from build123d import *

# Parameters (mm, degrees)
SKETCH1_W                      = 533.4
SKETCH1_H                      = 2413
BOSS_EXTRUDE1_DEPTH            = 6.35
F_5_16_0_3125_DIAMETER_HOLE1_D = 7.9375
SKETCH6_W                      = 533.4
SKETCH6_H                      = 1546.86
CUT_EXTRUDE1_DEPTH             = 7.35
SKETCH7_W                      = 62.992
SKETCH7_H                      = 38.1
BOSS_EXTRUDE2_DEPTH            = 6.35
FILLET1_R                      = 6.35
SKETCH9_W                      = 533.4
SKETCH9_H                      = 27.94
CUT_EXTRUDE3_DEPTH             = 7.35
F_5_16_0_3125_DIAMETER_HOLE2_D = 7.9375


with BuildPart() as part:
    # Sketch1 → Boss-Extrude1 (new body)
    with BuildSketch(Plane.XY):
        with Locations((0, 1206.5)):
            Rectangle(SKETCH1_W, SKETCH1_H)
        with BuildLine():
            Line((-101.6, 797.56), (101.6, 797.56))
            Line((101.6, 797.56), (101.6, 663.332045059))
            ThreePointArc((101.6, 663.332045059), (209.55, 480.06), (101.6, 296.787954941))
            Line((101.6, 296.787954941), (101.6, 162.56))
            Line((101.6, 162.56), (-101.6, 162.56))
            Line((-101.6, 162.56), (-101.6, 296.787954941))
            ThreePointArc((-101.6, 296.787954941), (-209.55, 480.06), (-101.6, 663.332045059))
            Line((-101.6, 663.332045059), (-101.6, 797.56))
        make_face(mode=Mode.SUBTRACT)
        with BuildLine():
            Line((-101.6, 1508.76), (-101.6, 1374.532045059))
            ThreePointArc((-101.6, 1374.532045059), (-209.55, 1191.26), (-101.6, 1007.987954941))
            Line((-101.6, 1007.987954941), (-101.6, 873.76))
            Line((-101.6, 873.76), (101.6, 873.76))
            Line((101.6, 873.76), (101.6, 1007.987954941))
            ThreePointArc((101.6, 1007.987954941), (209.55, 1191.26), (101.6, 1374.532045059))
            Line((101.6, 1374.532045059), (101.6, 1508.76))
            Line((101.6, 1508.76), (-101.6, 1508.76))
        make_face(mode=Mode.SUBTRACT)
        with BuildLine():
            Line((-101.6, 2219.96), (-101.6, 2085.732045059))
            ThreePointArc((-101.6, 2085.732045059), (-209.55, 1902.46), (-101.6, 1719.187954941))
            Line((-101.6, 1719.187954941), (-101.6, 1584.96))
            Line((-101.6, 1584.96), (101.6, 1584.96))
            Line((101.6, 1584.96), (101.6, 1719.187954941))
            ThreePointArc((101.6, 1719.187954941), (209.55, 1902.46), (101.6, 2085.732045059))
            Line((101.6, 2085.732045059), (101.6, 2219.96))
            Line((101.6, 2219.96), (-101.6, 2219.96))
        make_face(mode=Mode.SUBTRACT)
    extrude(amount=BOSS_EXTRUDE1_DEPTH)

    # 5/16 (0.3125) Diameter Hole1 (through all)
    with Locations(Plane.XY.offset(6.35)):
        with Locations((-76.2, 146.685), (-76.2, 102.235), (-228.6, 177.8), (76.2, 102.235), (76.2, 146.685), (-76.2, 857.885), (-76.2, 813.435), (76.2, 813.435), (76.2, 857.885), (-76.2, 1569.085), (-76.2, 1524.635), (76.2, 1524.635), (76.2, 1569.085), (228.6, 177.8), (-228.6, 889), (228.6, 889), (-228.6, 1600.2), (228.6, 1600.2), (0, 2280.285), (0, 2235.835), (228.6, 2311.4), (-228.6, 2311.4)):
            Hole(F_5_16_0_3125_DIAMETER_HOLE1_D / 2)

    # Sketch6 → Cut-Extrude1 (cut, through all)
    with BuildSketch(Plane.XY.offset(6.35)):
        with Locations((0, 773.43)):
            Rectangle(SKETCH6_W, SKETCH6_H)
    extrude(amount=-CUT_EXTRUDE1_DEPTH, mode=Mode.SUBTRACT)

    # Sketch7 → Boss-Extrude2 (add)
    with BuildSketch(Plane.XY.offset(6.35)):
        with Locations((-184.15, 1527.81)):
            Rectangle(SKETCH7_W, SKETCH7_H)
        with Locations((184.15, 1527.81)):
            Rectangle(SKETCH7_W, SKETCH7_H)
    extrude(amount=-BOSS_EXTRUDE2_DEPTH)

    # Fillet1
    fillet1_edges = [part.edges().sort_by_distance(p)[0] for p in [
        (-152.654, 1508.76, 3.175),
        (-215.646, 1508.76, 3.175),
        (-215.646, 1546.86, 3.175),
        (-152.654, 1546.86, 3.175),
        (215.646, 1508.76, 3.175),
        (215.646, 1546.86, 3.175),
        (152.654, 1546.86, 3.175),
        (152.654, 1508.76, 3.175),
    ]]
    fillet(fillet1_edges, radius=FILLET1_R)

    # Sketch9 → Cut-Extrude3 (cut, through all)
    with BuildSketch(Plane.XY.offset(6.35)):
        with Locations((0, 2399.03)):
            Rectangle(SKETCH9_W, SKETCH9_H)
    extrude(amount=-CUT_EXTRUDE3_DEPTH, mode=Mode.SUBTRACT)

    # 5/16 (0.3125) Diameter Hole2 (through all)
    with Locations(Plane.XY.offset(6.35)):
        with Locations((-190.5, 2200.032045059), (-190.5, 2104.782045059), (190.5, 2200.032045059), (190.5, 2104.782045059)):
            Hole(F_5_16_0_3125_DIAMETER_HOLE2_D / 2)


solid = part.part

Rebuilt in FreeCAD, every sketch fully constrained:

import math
import FreeCAD as App
import Part
import Sketcher
from FreeCAD import Vector
Q = App.Units.Quantity


def edges_at(feature, points):
    """Names of the edges that pass closest to the given points."""
    edges = feature.Shape.Edges
    near = lambda p: min(range(len(edges)), key=lambda i: edges[i].distToShape(Part.Vertex(*p))[0])
    return sorted({f"Edge{near(p) + 1}" for p in points})


def add_polygon(sketch, points):
    """Adds a closed chain of lines whose ends are joined by coincident constraints."""
    first, n = sketch.GeometryCount, len(points)
    for a, b in zip(points, points[1:] + points[:1]):
        sketch.addGeometry(Part.LineSegment(App.Vector(*a, 0), App.Vector(*b, 0)), False)
    for i in range(n):
        sketch.addConstraint(Sketcher.Constraint("Coincident", first + i, 2, first + (i + 1) % n, 1))

doc = App.newDocument("Part")
body = doc.addObject("PartDesign::Body", "Body")

# Sketch on XY plane
sketch1 = body.newObject("Sketcher::SketchObject", "Sketch")
sketch1.AttachmentSupport = (doc.getObject("XY_Plane"), [""])
sketch1.MapMode = "FlatFace"
add_polygon(sketch1, [(-267, 2413), (-267, 0), (267, 0), (267, 2413)])  # lines 0-3
sketch1.addGeometry(Part.LineSegment(Vector(-102, 663, 0), Vector(-102, 798, 0)), False)  # 4
sketch1.addGeometry(Part.LineSegment(Vector(-102, 798, 0), Vector(102, 798, 0)), False)  # 5
sketch1.addGeometry(Part.LineSegment(Vector(102, 798, 0), Vector(102, 663, 0)), False)  # 6
sketch1.addGeometry(Part.ArcOfCircle(Part.Circle(Vector(0, 480, 0), Vector(0, 0, 1), 210), math.radians(-61), math.radians(61)), False)  # 7
sketch1.addGeometry(Part.LineSegment(Vector(102, 297, 0), Vector(102, 163, 0)), False)  # 8
sketch1.addGeometry(Part.LineSegment(Vector(102, 163, 0), Vector(-102, 163, 0)), False)  # 9
sketch1.addGeometry(Part.LineSegment(Vector(-102, 163, 0), Vector(-102, 297, 0)), False)  # 10
sketch1.addGeometry(Part.ArcOfCircle(Part.Circle(Vector(0, 480, 0), Vector(0, 0, 1), 210), math.radians(119), math.radians(241)), False)  # 11
sketch1.addGeometry(Part.LineSegment(Vector(-102, 1375, 0), Vector(-102, 1509, 0)), False)  # 12
sketch1.addGeometry(Part.LineSegment(Vector(-102, 1509, 0), Vector(102, 1509, 0)), False)  # 13
sketch1.addGeometry(Part.LineSegment(Vector(102, 1509, 0), Vector(102, 1375, 0)), False)  # 14
sketch1.addGeometry(Part.ArcOfCircle(Part.Circle(Vector(0, 1191, 0), Vector(0, 0, 1), 210), math.radians(-61), math.radians(61)), False)  # 15
sketch1.addGeometry(Part.LineSegment(Vector(102, 1008, 0), Vector(102, 874, 0)), False)  # 16
sketch1.addGeometry(Part.LineSegment(Vector(102, 874, 0), Vector(-102, 874, 0)), False)  # 17
sketch1.addGeometry(Part.LineSegment(Vector(-102, 874, 0), Vector(-102, 1008, 0)), False)  # 18
sketch1.addGeometry(Part.ArcOfCircle(Part.Circle(Vector(0, 1191, 0), Vector(0, 0, 1), 210), math.radians(119), math.radians(241)), False)  # 19
sketch1.addGeometry(Part.LineSegment(Vector(-102, 2086, 0), Vector(-102, 2220, 0)), False)  # 20
sketch1.addGeometry(Part.LineSegment(Vector(-102, 2220, 0), Vector(102, 2220, 0)), False)  # 21
sketch1.addGeometry(Part.LineSegment(Vector(102, 2220, 0), Vector(102, 2086, 0)), False)  # 22
sketch1.addGeometry(Part.ArcOfCircle(Part.Circle(Vector(0, 1902, 0), Vector(0, 0, 1), 210), math.radians(-61), math.radians(61)), False)  # 23
sketch1.addGeometry(Part.LineSegment(Vector(102, 1719, 0), Vector(102, 1585, 0)), False)  # 24
sketch1.addGeometry(Part.LineSegment(Vector(102, 1585, 0), Vector(-102, 1585, 0)), False)  # 25
sketch1.addGeometry(Part.LineSegment(Vector(-102, 1585, 0), Vector(-102, 1719, 0)), False)  # 26
sketch1.addGeometry(Part.ArcOfCircle(Part.Circle(Vector(0, 1902, 0), Vector(0, 0, 1), 210), math.radians(119), math.radians(241)), False)  # 27
sketch1.addConstraint([
    Sketcher.Constraint("Coincident", 4, 2, 5, 1),
    Sketcher.Constraint("Coincident", 5, 2, 6, 1),
    Sketcher.Constraint("Coincident", 6, 2, 7, 2),
    Sketcher.Constraint("Coincident", 7, 1, 8, 1),
    Sketcher.Constraint("Coincident", 8, 2, 9, 1),
    Sketcher.Constraint("Coincident", 9, 2, 10, 1),
    Sketcher.Constraint("Coincident", 10, 2, 11, 2),
    Sketcher.Constraint("Coincident", 11, 1, 4, 1),
    Sketcher.Constraint("Coincident", 12, 2, 13, 1),
    Sketcher.Constraint("Coincident", 13, 2, 14, 1),
    Sketcher.Constraint("Coincident", 14, 2, 15, 2),
    Sketcher.Constraint("Coincident", 15, 1, 16, 1),
    Sketcher.Constraint("Coincident", 16, 2, 17, 1),
    Sketcher.Constraint("Coincident", 17, 2, 18, 1),
    Sketcher.Constraint("Coincident", 18, 2, 19, 2),
    Sketcher.Constraint("Coincident", 19, 1, 12, 1),
    Sketcher.Constraint("Coincident", 20, 2, 21, 1),
    Sketcher.Constraint("Coincident", 21, 2, 22, 1),
    Sketcher.Constraint("Coincident", 22, 2, 23, 2),
    Sketcher.Constraint("Coincident", 23, 1, 24, 1),
    Sketcher.Constraint("Coincident", 24, 2, 25, 1),
    Sketcher.Constraint("Coincident", 25, 2, 26, 1),
    Sketcher.Constraint("Coincident", 26, 2, 27, 2),
    Sketcher.Constraint("Coincident", 27, 1, 20, 1),
    Sketcher.Constraint("Vertical", 0),
    Sketcher.Constraint("Horizontal", 1),
    Sketcher.Constraint("Vertical", 2),
    Sketcher.Constraint("Horizontal", 3),
    Sketcher.Constraint("Vertical", 4),
    Sketcher.Constraint("Horizontal", 5),
    Sketcher.Constraint("Vertical", 6),
    Sketcher.Constraint("Vertical", 8),
    Sketcher.Constraint("Horizontal", 9),
    Sketcher.Constraint("Vertical", 10),
    Sketcher.Constraint("Vertical", 12),
    Sketcher.Constraint("Horizontal", 13),
    Sketcher.Constraint("Vertical", 14),
    Sketcher.Constraint("Vertical", 16),
    Sketcher.Constraint("Horizontal", 17),
    Sketcher.Constraint("Vertical", 18),
    Sketcher.Constraint("Vertical", 20),
    Sketcher.Constraint("Horizontal", 21),
    Sketcher.Constraint("Vertical", 22),
    Sketcher.Constraint("Vertical", 24),
    Sketcher.Constraint("Horizontal", 25),
    Sketcher.Constraint("Vertical", 26),
    Sketcher.Constraint("Coincident", 11, 3, 7, 3),
    Sketcher.Constraint("Coincident", 19, 3, 15, 3),
    Sketcher.Constraint("Coincident", 27, 3, 23, 3),
    Sketcher.Constraint("Equal", 7, 11),
    Sketcher.Constraint("Equal", 11, 15),
    Sketcher.Constraint("Equal", 15, 19),
    Sketcher.Constraint("Equal", 19, 23),
    Sketcher.Constraint("Equal", 23, 27),
    Sketcher.Constraint("Symmetric", 0, 2, 1, 2, -1, 1),
    Sketcher.Constraint("Symmetric", 7, 1, 10, 2, -2),
    Sketcher.Constraint("Symmetric", 15, 1, 18, 2, -2),
    Sketcher.Constraint("Symmetric", 23, 1, 26, 2, -2),
    Sketcher.Constraint("Horizontal", 6, 2, 11, 1),
    Sketcher.Constraint("Horizontal", 14, 2, 19, 1),
    Sketcher.Constraint("Horizontal", 22, 2, 27, 1),
    Sketcher.Constraint("Vertical", 6, 2, 7, 1),
    Sketcher.Constraint("Vertical", 11, 1, 12, 2),
    Sketcher.Constraint("Vertical", 14, 2, 15, 1),
    Sketcher.Constraint("Vertical", 19, 1, 20, 2),
    Sketcher.Constraint("Vertical", 22, 2, 23, 1),
    Sketcher.Constraint("Equal", 6, 8),
    Sketcher.Constraint("Equal", 10, 12),
    Sketcher.Constraint("Equal", 14, 16),
    Sketcher.Constraint("Equal", 18, 20),
    Sketcher.Constraint("Equal", 22, 24),
    Sketcher.Constraint("DistanceX", 1, 1, 1, 2, Q("21 in")),
    Sketcher.Constraint("DistanceX", 5, 1, 5, 2, Q("8 in")),
    Sketcher.Constraint("DistanceY", 0, 2, 0, 1, Q("95 in")),
    Sketcher.Constraint("Radius", 7, Q("8.25 in")),
    Sketcher.Constraint("DistanceY", 7, 3, 15, 3, Q("28 in")),
    Sketcher.Constraint("DistanceY", 15, 3, 23, 3, Q("28 in")),
    Sketcher.Constraint("DistanceY", 5, 2, 16, 2, Q("3 in")),
    Sketcher.Constraint("DistanceY", -1, 1, 7, 3, Q("18.9 in")),
])
pad1 = body.newObject("PartDesign::Pad", "Pad")
pad1.Profile = sketch1
pad1.Length = Q("0.25 in")

# Sketch on XY plane
sketch2 = body.newObject("Sketcher::SketchObject", "Sketch001")
sketch2.AttachmentSupport = (doc.getObject("XY_Plane"), [""])
sketch2.MapMode = "FlatFace"
sketch2.AttachmentOffset = App.Placement(Vector(0, 0, 0.25 * 25.4), App.Rotation())
sketch2.addGeometry([
    Part.Circle(Vector(-76.2, 146.7, 0), Vector(0, 0, 1), 4),  # 0
    Part.Circle(Vector(-76.2, 102.2, 0), Vector(0, 0, 1), 4),  # 1
    Part.Circle(Vector(-228.6, 177.8, 0), Vector(0, 0, 1), 4),  # 2
    Part.Circle(Vector(76.2, 102.2, 0), Vector(0, 0, 1), 4),  # 3
    Part.Circle(Vector(76.2, 146.7, 0), Vector(0, 0, 1), 4),  # 4
    Part.Circle(Vector(-76.2, 857.9, 0), Vector(0, 0, 1), 4),  # 5
    Part.Circle(Vector(-76.2, 813.4, 0), Vector(0, 0, 1), 4),  # 6
    Part.Circle(Vector(76.2, 813.4, 0), Vector(0, 0, 1), 4),  # 7
    Part.Circle(Vector(76.2, 857.9, 0), Vector(0, 0, 1), 4),  # 8
    Part.Circle(Vector(-76.2, 1569.1, 0), Vector(0, 0, 1), 4),  # 9
    Part.Circle(Vector(-76.2, 1524.6, 0), Vector(0, 0, 1), 4),  # 10
    Part.Circle(Vector(76.2, 1524.6, 0), Vector(0, 0, 1), 4),  # 11
    Part.Circle(Vector(76.2, 1569.1, 0), Vector(0, 0, 1), 4),  # 12
    Part.Circle(Vector(228.6, 177.8, 0), Vector(0, 0, 1), 4),  # 13
    Part.Circle(Vector(-228.6, 889, 0), Vector(0, 0, 1), 4),  # 14
    Part.Circle(Vector(228.6, 889, 0), Vector(0, 0, 1), 4),  # 15
    Part.Circle(Vector(-228.6, 1600.2, 0), Vector(0, 0, 1), 4),  # 16
    Part.Circle(Vector(228.6, 1600.2, 0), Vector(0, 0, 1), 4),  # 17
    Part.Circle(Vector(0, 2280.3, 0), Vector(0, 0, 1), 4),  # 18
    Part.Circle(Vector(0, 2235.8, 0), Vector(0, 0, 1), 4),  # 19
    Part.Circle(Vector(228.6, 2311.4, 0), Vector(0, 0, 1), 4),  # 20
    Part.Circle(Vector(-228.6, 2311.4, 0), Vector(0, 0, 1), 4),  # 21
], False)
sketch2.addConstraint([
    Sketcher.Constraint("Equal", 0, 1),
    Sketcher.Constraint("Equal", 1, 2),
    Sketcher.Constraint("Equal", 2, 3),
    Sketcher.Constraint("Equal", 3, 4),
    Sketcher.Constraint("Equal", 4, 5),
    Sketcher.Constraint("Equal", 5, 6),
    Sketcher.Constraint("Equal", 6, 7),
    Sketcher.Constraint("Equal", 7, 8),
    Sketcher.Constraint("Equal", 8, 9),
    Sketcher.Constraint("Equal", 9, 10),
    Sketcher.Constraint("Equal", 10, 11),
    Sketcher.Constraint("Equal", 11, 12),
    Sketcher.Constraint("Equal", 12, 13),
    Sketcher.Constraint("Equal", 13, 14),
    Sketcher.Constraint("Equal", 14, 15),
    Sketcher.Constraint("Equal", 15, 16),
    Sketcher.Constraint("Equal", 16, 17),
    Sketcher.Constraint("Equal", 17, 18),
    Sketcher.Constraint("Equal", 18, 19),
    Sketcher.Constraint("Equal", 19, 20),
    Sketcher.Constraint("Equal", 20, 21),
    Sketcher.Constraint("Symmetric", 1, 3, 3, 3, -2),
    Sketcher.Constraint("Symmetric", 0, 3, 4, 3, -2),
    Sketcher.Constraint("Symmetric", 6, 3, 7, 3, -2),
    Sketcher.Constraint("Symmetric", 5, 3, 8, 3, -2),
    Sketcher.Constraint("Symmetric", 10, 3, 11, 3, -2),
    Sketcher.Constraint("Symmetric", 9, 3, 12, 3, -2),
    Sketcher.Constraint("Symmetric", 2, 3, 13, 3, -2),
    Sketcher.Constraint("Symmetric", 14, 3, 15, 3, -2),
    Sketcher.Constraint("Symmetric", 16, 3, 17, 3, -2),
    Sketcher.Constraint("Symmetric", 20, 3, 21, 3, -2),
    Sketcher.Constraint("PointOnObject", 18, 3, -2),
    Sketcher.Constraint("PointOnObject", 19, 3, -2),
    Sketcher.Constraint("Vertical", 0, 3, 1, 3),
    Sketcher.Constraint("Vertical", 1, 3, 5, 3),
    Sketcher.Constraint("Vertical", 5, 3, 6, 3),
    Sketcher.Constraint("Vertical", 6, 3, 9, 3),
    Sketcher.Constraint("Vertical", 9, 3, 10, 3),
    Sketcher.Constraint("Vertical", 2, 3, 14, 3),
    Sketcher.Constraint("Vertical", 14, 3, 16, 3),
    Sketcher.Constraint("Vertical", 17, 3, 20, 3),
    Sketcher.Constraint("Diameter", 0, Q("0.3125 in")),
    Sketcher.Constraint("DistanceX", 0, 3, -1, 1, Q("3 in")),
    Sketcher.Constraint("DistanceX", 2, 3, -1, 1, Q("9 in")),
    Sketcher.Constraint("DistanceY", -1, 1, 2, 3, Q("7 in")),
    Sketcher.Constraint("DistanceY", -1, 1, 14, 3, Q("35 in")),
    Sketcher.Constraint("DistanceY", -1, 1, 16, 3, Q("63 in")),
    Sketcher.Constraint("DistanceY", -1, 1, 20, 3, Q("91 in")),
    Sketcher.Constraint("DistanceY", 0, 3, 5, 3, Q("28 in")),
    Sketcher.Constraint("DistanceY", 1, 3, 6, 3, Q("28 in")),
    Sketcher.Constraint("DistanceY", 5, 3, 9, 3, Q("28 in")),
    Sketcher.Constraint("DistanceY", 6, 3, 10, 3, Q("28 in")),
    Sketcher.Constraint("DistanceY", 9, 3, 18, 3, Q("28 in")),
    Sketcher.Constraint("DistanceY", 1, 3, 0, 3, Q("1.75 in")),
    Sketcher.Constraint("DistanceY", 19, 3, 18, 3, Q("1.75 in")),
    Sketcher.Constraint("DistanceY", -1, 1, 0, 3, Q("5.775 in")),
])
doc.recompute()
hole = body.newObject("PartDesign::Hole", "Hole")
hole.Profile = sketch2
hole.ThreadType = "None"
hole.Diameter = Q("0.3125 in")
hole.DepthType = "ThroughAll"

# Sketch on XY plane
sketch3 = body.newObject("Sketcher::SketchObject", "Sketch002")
sketch3.AttachmentSupport = (doc.getObject("XY_Plane"), [""])
sketch3.MapMode = "FlatFace"
sketch3.AttachmentOffset = App.Placement(Vector(0, 0, 0.25 * 25.4), App.Rotation())
add_polygon(sketch3, [(-267, 1547), (-267, 0), (267, 0), (267, 1547)])  # lines 0-3
sketch3.addConstraint([
    Sketcher.Constraint("Vertical", 0),
    Sketcher.Constraint("Horizontal", 1),
    Sketcher.Constraint("Vertical", 2),
    Sketcher.Constraint("Horizontal", 3),
    Sketcher.Constraint("Symmetric", 0, 2, 1, 2, -1, 1),
    Sketcher.Constraint("DistanceX", 1, 1, 1, 2, Q("21 in")),
    Sketcher.Constraint("DistanceY", 0, 2, 0, 1, Q("60.9 in")),
])
pocket1 = body.newObject("PartDesign::Pocket", "Pocket")
pocket1.Profile = sketch3
pocket1.Type = "ThroughAll"

# Sketch on XY plane
sketch4 = body.newObject("Sketcher::SketchObject", "Sketch003")
sketch4.AttachmentSupport = (doc.getObject("XY_Plane"), [""])
sketch4.MapMode = "FlatFace"
sketch4.AttachmentOffset = App.Placement(Vector(0, 0, 0.25 * 25.4), App.Rotation())
add_polygon(sketch4, [(-216, 1547), (-216, 1509), (-153, 1509), (-153, 1547)])  # lines 0-3
add_polygon(sketch4, [(153, 1547), (153, 1509), (216, 1509), (216, 1547)])  # lines 4-7
sketch4.addConstraint([
    Sketcher.Constraint("Vertical", 0),
    Sketcher.Constraint("Horizontal", 1),
    Sketcher.Constraint("Vertical", 2),
    Sketcher.Constraint("Horizontal", 3),
    Sketcher.Constraint("Vertical", 4),
    Sketcher.Constraint("Horizontal", 5),
    Sketcher.Constraint("Vertical", 6),
    Sketcher.Constraint("Horizontal", 7),
    Sketcher.Constraint("Symmetric", 1, 2, 4, 2, -2),
    Sketcher.Constraint("Symmetric", 3, 2, 6, 2, -2),
    Sketcher.Constraint("DistanceY", 0, 2, 0, 1, Q("1.5 in")),
    Sketcher.Constraint("DistanceX", 1, 1, 1, 2, Q("2.48 in")),
    Sketcher.Constraint("DistanceY", -1, 1, 0, 2, Q("59.4 in")),
    Sketcher.Constraint("DistanceX", 0, 2, 4, 2, Q("14.5 in")),
])
pad2 = body.newObject("PartDesign::Pad", "Pad001")
pad2.Profile = sketch4
pad2.Length = Q("0.25 in")
pad2.Reversed = True
doc.recompute()

fillet = body.newObject("PartDesign::Fillet", "Fillet")
fillet.Base = (pad2, edges_at(pad2, [
    (-152.654, 1508.76, 3.175),
    (-215.646, 1508.76, 3.175),
    (-215.646, 1546.86, 3.175),
    (-152.654, 1546.86, 3.175),
    (215.646, 1508.76, 3.175),
    (215.646, 1546.86, 3.175),
    (152.654, 1546.86, 3.175),
    (152.654, 1508.76, 3.175),
]))
fillet.Radius = Q("0.25 in")

# Sketch on XY plane
sketch5 = body.newObject("Sketcher::SketchObject", "Sketch004")
sketch5.AttachmentSupport = (doc.getObject("XY_Plane"), [""])
sketch5.MapMode = "FlatFace"
sketch5.AttachmentOffset = App.Placement(Vector(0, 0, 0.25 * 25.4), App.Rotation())
add_polygon(sketch5, [(-267, 2413), (-267, 2385), (267, 2385), (267, 2413)])  # lines 0-3
sketch5.addConstraint([
    Sketcher.Constraint("Vertical", 0),
    Sketcher.Constraint("Horizontal", 1),
    Sketcher.Constraint("Vertical", 2),
    Sketcher.Constraint("Horizontal", 3),
    Sketcher.Constraint("DistanceX", 1, 1, 1, 2, Q("21 in")),
    Sketcher.Constraint("DistanceY", 0, 2, 0, 1, Q("1.1 in")),
    Sketcher.Constraint("DistanceY", -1, 1, 2, 2, Q("95 in")),
    Sketcher.Constraint("DistanceX", 0, 2, -1, 1, Q("10.5 in")),
])
pocket2 = body.newObject("PartDesign::Pocket", "Pocket001")
pocket2.Profile = sketch5
pocket2.Type = "ThroughAll"

# Sketch on XY plane
sketch6 = body.newObject("Sketcher::SketchObject", "Sketch005")
sketch6.AttachmentSupport = (doc.getObject("XY_Plane"), [""])
sketch6.MapMode = "FlatFace"
sketch6.AttachmentOffset = App.Placement(Vector(0, 0, 0.25 * 25.4), App.Rotation())
sketch6.addGeometry([
    Part.Circle(Vector(-190.5, 2200, 0), Vector(0, 0, 1), 4),
    Part.Circle(Vector(-190.5, 2104.8, 0), Vector(0, 0, 1), 4),
    Part.Circle(Vector(190.5, 2200, 0), Vector(0, 0, 1), 4),
    Part.Circle(Vector(190.5, 2104.8, 0), Vector(0, 0, 1), 4),
], False)
sketch6.addConstraint([
    Sketcher.Constraint("Equal", 0, 1),
    Sketcher.Constraint("Equal", 1, 2),
    Sketcher.Constraint("Equal", 2, 3),
    Sketcher.Constraint("Symmetric", 0, 3, 2, 3, -2),
    Sketcher.Constraint("Symmetric", 1, 3, 3, 3, -2),
    Sketcher.Constraint("Vertical", 0, 3, 1, 3),
    Sketcher.Constraint("Diameter", 0, Q("0.3125 in")),
    Sketcher.Constraint("DistanceX", 0, 3, 2, 3, Q("15 in")),
    Sketcher.Constraint("DistanceY", 1, 3, 0, 3, Q("3.75 in")),
    Sketcher.Constraint("DistanceY", -1, 1, 0, 3, 2200.032045),
])
doc.recompute()
hole2 = body.newObject("PartDesign::Hole", "Hole001")
hole2.Profile = sketch6
hole2.ThreadType = "None"
hole2.Diameter = Q("0.3125 in")
hole2.DepthType = "ThroughAll"

doc.recompute()
